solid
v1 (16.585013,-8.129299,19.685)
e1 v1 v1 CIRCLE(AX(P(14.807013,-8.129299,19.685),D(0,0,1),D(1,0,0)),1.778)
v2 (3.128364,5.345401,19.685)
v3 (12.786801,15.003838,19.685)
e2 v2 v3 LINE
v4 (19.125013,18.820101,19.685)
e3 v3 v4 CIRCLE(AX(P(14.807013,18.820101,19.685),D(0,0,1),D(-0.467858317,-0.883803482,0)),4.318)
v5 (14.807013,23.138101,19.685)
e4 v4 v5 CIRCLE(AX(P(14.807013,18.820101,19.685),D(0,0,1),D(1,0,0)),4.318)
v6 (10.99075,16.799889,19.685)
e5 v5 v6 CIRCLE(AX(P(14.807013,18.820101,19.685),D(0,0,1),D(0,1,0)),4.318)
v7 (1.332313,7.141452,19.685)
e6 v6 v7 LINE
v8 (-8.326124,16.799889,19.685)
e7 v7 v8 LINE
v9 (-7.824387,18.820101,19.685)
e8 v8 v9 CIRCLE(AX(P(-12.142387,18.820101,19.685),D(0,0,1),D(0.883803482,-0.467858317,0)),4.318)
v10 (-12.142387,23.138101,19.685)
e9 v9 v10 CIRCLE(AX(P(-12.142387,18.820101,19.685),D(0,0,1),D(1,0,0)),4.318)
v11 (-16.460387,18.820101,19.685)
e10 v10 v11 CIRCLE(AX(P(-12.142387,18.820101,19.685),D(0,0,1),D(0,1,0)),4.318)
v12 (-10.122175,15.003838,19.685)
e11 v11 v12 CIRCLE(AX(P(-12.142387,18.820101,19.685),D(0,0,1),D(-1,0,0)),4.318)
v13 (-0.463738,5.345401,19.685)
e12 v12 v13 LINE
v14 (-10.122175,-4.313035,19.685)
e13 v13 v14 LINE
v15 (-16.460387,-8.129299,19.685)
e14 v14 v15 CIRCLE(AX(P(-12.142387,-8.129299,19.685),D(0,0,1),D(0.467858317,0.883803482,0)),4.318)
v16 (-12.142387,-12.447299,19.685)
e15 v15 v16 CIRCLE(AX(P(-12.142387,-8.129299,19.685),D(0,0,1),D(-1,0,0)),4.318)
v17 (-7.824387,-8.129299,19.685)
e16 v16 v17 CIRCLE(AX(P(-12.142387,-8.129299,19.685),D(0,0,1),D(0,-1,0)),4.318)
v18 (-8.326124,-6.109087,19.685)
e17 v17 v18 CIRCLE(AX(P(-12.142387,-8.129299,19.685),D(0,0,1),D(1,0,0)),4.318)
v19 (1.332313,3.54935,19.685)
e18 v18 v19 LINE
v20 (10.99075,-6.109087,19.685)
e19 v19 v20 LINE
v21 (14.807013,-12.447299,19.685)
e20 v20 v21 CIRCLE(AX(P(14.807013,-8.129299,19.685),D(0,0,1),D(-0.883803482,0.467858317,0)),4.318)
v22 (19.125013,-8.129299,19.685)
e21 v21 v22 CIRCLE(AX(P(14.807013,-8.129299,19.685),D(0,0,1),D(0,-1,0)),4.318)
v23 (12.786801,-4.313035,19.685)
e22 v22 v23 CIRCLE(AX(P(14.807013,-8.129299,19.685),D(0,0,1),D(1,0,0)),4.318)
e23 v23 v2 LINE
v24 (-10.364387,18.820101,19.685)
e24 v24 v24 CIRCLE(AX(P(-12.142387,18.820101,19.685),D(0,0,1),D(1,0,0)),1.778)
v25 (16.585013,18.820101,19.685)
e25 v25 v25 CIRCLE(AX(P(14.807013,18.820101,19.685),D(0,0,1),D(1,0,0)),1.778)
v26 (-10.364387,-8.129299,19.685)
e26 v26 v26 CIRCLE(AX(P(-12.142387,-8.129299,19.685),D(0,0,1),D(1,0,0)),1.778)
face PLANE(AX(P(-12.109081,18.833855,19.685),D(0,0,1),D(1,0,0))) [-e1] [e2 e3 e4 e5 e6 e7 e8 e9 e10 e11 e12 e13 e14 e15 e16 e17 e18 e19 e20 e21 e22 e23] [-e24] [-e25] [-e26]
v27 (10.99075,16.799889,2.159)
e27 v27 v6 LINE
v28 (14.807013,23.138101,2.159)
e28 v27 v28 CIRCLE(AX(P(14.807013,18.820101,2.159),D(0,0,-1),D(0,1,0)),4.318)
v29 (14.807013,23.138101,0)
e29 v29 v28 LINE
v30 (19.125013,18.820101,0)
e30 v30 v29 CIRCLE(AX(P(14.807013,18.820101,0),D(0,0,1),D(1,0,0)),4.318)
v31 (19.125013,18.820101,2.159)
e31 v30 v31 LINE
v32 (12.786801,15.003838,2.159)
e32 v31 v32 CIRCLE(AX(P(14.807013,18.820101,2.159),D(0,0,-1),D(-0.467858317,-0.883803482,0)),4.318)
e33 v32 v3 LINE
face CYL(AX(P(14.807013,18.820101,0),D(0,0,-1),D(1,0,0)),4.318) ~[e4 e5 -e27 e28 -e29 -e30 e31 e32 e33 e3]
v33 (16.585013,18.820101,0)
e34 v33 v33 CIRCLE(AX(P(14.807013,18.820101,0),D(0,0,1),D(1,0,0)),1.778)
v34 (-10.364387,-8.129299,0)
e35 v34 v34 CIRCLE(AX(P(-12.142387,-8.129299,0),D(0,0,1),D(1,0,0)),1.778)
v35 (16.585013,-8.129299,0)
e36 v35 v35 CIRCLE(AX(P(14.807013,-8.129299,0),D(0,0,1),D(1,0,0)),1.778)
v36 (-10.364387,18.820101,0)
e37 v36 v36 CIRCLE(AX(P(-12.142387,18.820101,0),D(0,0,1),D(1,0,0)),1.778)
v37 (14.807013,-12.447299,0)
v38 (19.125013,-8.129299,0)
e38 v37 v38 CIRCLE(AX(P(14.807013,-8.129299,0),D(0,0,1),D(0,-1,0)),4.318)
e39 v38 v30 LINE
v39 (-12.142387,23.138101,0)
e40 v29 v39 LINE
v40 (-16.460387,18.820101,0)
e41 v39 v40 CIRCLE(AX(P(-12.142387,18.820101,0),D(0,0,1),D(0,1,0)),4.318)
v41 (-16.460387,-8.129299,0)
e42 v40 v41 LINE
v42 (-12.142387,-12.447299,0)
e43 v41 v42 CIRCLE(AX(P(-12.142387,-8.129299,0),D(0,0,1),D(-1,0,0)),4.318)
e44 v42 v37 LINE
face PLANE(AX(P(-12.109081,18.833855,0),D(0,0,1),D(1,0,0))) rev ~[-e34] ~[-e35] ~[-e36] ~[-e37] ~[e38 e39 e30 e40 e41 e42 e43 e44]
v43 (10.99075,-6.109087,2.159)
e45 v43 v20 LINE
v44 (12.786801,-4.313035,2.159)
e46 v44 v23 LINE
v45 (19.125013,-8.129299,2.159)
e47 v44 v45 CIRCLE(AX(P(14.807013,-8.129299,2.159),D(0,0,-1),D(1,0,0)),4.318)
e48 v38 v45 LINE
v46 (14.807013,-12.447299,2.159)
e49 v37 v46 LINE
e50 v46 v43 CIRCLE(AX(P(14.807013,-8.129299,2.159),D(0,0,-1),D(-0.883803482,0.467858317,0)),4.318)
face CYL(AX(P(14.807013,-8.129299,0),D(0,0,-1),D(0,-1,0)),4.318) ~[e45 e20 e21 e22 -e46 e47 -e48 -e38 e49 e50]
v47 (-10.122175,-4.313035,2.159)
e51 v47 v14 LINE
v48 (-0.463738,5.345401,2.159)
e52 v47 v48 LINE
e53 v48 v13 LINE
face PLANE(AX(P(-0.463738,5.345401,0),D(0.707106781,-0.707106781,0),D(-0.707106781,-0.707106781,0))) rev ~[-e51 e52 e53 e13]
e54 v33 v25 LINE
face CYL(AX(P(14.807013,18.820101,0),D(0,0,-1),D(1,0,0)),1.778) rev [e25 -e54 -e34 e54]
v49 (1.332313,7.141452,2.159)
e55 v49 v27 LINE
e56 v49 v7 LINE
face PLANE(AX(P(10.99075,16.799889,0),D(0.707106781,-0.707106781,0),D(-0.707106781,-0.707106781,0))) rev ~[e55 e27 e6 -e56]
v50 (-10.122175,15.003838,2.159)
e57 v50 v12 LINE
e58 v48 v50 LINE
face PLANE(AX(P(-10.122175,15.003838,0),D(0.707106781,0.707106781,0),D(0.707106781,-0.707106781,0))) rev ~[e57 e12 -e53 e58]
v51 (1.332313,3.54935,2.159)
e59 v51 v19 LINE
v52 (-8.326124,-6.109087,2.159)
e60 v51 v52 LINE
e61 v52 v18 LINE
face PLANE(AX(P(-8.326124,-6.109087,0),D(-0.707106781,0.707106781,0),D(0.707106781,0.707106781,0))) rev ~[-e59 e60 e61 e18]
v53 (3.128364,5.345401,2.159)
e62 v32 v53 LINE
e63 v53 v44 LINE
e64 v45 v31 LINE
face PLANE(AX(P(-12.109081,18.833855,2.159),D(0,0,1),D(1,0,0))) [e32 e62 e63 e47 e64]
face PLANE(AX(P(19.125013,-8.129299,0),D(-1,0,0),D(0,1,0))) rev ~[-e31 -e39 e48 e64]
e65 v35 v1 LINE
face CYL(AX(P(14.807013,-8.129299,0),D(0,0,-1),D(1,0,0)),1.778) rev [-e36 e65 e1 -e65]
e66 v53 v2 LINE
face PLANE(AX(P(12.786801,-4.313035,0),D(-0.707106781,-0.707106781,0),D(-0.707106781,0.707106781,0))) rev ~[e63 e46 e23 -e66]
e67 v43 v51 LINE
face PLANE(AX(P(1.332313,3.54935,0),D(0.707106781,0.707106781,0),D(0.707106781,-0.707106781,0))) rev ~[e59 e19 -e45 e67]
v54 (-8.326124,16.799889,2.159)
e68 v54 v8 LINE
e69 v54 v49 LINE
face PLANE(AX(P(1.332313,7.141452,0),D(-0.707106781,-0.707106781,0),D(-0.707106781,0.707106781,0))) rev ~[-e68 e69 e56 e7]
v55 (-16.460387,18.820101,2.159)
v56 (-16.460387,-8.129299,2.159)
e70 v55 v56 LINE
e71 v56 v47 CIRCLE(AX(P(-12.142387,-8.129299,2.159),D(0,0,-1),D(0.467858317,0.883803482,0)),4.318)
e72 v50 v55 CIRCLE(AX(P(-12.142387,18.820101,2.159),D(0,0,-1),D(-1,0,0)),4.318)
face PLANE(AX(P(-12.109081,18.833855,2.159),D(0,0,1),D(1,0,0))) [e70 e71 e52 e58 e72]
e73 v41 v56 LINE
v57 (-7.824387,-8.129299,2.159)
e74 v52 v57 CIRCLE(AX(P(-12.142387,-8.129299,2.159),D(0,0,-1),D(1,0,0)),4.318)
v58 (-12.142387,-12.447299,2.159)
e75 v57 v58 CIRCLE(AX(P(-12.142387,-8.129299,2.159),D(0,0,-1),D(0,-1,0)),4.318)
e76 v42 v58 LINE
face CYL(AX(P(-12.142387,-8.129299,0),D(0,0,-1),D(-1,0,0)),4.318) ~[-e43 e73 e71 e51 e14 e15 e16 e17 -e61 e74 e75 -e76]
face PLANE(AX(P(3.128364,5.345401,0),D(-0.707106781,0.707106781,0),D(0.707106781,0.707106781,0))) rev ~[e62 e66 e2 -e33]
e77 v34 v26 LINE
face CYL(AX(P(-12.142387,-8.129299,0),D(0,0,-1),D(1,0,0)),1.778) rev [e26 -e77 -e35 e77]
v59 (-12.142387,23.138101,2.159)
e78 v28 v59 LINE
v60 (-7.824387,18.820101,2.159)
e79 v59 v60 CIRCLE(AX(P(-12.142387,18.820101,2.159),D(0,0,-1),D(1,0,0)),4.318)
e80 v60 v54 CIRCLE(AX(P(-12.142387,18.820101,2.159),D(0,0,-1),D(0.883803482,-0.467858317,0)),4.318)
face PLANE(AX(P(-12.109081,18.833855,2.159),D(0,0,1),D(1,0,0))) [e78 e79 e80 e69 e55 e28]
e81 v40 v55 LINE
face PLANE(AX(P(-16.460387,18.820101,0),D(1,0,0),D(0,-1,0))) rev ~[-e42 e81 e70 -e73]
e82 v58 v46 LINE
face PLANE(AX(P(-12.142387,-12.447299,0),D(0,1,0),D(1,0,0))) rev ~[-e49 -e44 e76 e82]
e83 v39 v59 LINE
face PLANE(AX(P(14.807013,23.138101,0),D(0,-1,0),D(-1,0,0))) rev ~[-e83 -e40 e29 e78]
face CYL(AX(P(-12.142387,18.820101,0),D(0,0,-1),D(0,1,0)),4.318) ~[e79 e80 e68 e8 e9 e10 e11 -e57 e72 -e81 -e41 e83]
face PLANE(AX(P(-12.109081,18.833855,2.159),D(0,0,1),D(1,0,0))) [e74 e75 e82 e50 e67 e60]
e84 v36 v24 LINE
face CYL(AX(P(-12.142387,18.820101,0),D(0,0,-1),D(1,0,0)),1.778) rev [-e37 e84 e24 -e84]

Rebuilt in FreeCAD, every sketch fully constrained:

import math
import FreeCAD as App
import Part
import Sketcher
from FreeCAD import Vector
Q = App.Units.Quantity

doc = App.newDocument("Part")
params = doc.addObject("Spreadsheet::Sheet", "Params")
for row, (alias, value) in enumerate([
    ("sketch1_diameter", "0.14 in"),
    ("sketch1_radius", "0.17 in"),
    ("sketch1_width", "1.061 in"),
    ("pad1_length", "0.085 in"),
    ("sketch2_diameter", "0.14 in"),
    ("sketch2_radius", "0.17 in"),
    ("pad2_length", "0.775 in"),
], start=1):
    params.set(f"A{row}", alias)
    params.set(f"B{row}", "=" + value)
    params.setAlias(f"B{row}", alias)

body = doc.addObject("PartDesign::Body", "Body")

# Sketch on XY plane
sketch1 = doc.addObject("Sketcher::SketchObject", "Sketch")
body.addObject(sketch1)
sketch1.AttachmentSupport = (doc.XY_Plane, [""])
sketch1.MapMode = "FlatFace"
sketch1.addGeometry(Part.ArcOfCircle(Part.Circle(Vector(-12.1, 18.8, 0), Vector(0, 0, 1), 4.3), math.radians(90), math.radians(180)), False)
sketch1.addGeometry(Part.LineSegment(Vector(-16.5, 18.8, 0), Vector(-16.5, -8.1, 0)), False)
sketch1.addGeometry(Part.ArcOfCircle(Part.Circle(Vector(-12.1, -8.1, 0), Vector(0, 0, 1), 4.3), math.radians(180), math.radians(270)), False)
sketch1.addGeometry(Part.LineSegment(Vector(-12.1, -12.4, 0), Vector(14.8, -12.4, 0)), False)
sketch1.addGeometry(Part.ArcOfCircle(Part.Circle(Vector(14.8, -8.1, 0), Vector(0, 0, 1), 4.3), math.radians(-90), math.radians(0)), False)
sketch1.addGeometry(Part.LineSegment(Vector(19.1, -8.1, 0), Vector(19.1, 18.8, 0)), False)
sketch1.addGeometry(Part.ArcOfCircle(Part.Circle(Vector(14.8, 18.8, 0), Vector(0, 0, 1), 4.3), math.radians(0), math.radians(90)), False)
sketch1.addGeometry(Part.LineSegment(Vector(14.8, 23.1, 0), Vector(-12.1, 23.1, 0)), False)
sketch1.addGeometry(Part.Circle(Vector(-12.1, 18.8, 0), Vector(0, 0, 1), 1.8), False)
sketch1.addGeometry(Part.Circle(Vector(14.8, 18.8, 0), Vector(0, 0, 1), 1.8), False)
sketch1.addGeometry(Part.Circle(Vector(-12.1, -8.1, 0), Vector(0, 0, 1), 1.8), False)
sketch1.addGeometry(Part.Circle(Vector(14.8, -8.1, 0), Vector(0, 0, 1), 1.8), False)
sketch1.addConstraint(Sketcher.Constraint("Tangent", 0, 2, 1, 1))
sketch1.addConstraint(Sketcher.Constraint("Tangent", 1, 2, 2, 1))
sketch1.addConstraint(Sketcher.Constraint("Tangent", 2, 2, 3, 1))
sketch1.addConstraint(Sketcher.Constraint("Tangent", 3, 2, 4, 1))
sketch1.addConstraint(Sketcher.Constraint("Tangent", 4, 2, 5, 1))
sketch1.addConstraint(Sketcher.Constraint("Tangent", 5, 2, 6, 1))
sketch1.addConstraint(Sketcher.Constraint("Tangent", 6, 2, 7, 1))
sketch1.addConstraint(Sketcher.Constraint("Tangent", 7, 2, 0, 1))
sketch1.addConstraint(Sketcher.Constraint("Vertical", 1))
sketch1.addConstraint(Sketcher.Constraint("Horizontal", 3))
sketch1.addConstraint(Sketcher.Constraint("Vertical", 5))
sketch1.addConstraint(Sketcher.Constraint("Horizontal", 7))
sketch1.addConstraint(Sketcher.Constraint("Coincident", 8, 3, 0, 3))
sketch1.addConstraint(Sketcher.Constraint("Coincident", 9, 3, 6, 3))
sketch1.addConstraint(Sketcher.Constraint("Coincident", 10, 3, 2, 3))
sketch1.addConstraint(Sketcher.Constraint("Coincident", 11, 3, 4, 3))
sketch1.addConstraint(Sketcher.Constraint("Equal", 0, 2))
sketch1.addConstraint(Sketcher.Constraint("Equal", 2, 4))
sketch1.addConstraint(Sketcher.Constraint("Equal", 4, 6))
sketch1.addConstraint(Sketcher.Constraint("Equal", 8, 9))
sketch1.addConstraint(Sketcher.Constraint("Equal", 9, 10))
sketch1.addConstraint(Sketcher.Constraint("Equal", 10, 11))
sketch1.addConstraint(Sketcher.Constraint("Equal", 7, 1))
sketch1.addConstraint(Sketcher.Constraint("Diameter", 8, Q("0.14 in")))
sketch1.addConstraint(Sketcher.Constraint("Radius", 0, Q("0.17 in")))
sketch1.addConstraint(Sketcher.Constraint("DistanceX", 3, 1, 3, 2, Q("1.061 in")))
sketch1.addConstraint(Sketcher.Constraint("DistanceY", -1, 1, 0, 3, 18.820101))
sketch1.addConstraint(Sketcher.Constraint("DistanceX", 0, 3, -1, 1, 12.142387))
sketch1.setExpression("Constraints[23]", "Params.sketch1_diameter")
sketch1.setExpression("Constraints[24]", "Params.sketch1_radius")
sketch1.setExpression("Constraints[25]", "Params.sketch1_width")
pad1 = doc.addObject("PartDesign::Pad", "Pad")
body.addObject(pad1)
pad1.Profile = sketch1
pad1.setExpression("Length", "Params.pad1_length")

# Sketch on XY plane
sketch2 = doc.addObject("Sketcher::SketchObject", "Sketch001")
body.addObject(sketch2)
sketch2.AttachmentSupport = (doc.XY_Plane, [""])
sketch2.MapMode = "FlatFace"
sketch2.addGeometry(Part.ArcOfCircle(Part.Circle(Vector(-12.1, 18.8, 0), Vector(0, 0, 1), 4.3), math.radians(0), math.radians(90)), False)
sketch2.addGeometry(Part.ArcOfCircle(Part.Circle(Vector(-12.1, 18.8, 0), Vector(0, 0, 1), 4.3), math.radians(90), math.radians(180)), False)
sketch2.addGeometry(Part.ArcOfCircle(Part.Circle(Vector(-12.1, 18.8, 0), Vector(0, 0, 1), 4.3), math.radians(180), math.radians(298)), False)
sketch2.addGeometry(Part.LineSegment(Vector(-10.1, 15, 0), Vector(-0.5, 5.3, 0)), False)
sketch2.addGeometry(Part.LineSegment(Vector(-0.5, 5.3, 0), Vector(-10.1, -4.3, 0)), False)
sketch2.addGeometry(Part.ArcOfCircle(Part.Circle(Vector(-12.1, -8.1, 0), Vector(0, 0, 1), 4.3), math.radians(62), math.radians(180)), False)
sketch2.addGeometry(Part.ArcOfCircle(Part.Circle(Vector(-12.1, -8.1, 0), Vector(0, 0, 1), 4.3), math.radians(180), math.radians(270)), False)
sketch2.addGeometry(Part.ArcOfCircle(Part.Circle(Vector(-12.1, -8.1, 0), Vector(0, 0, 1), 4.3), math.radians(-90), math.radians(0)), False)
sketch2.addGeometry(Part.ArcOfCircle(Part.Circle(Vector(-12.1, -8.1, 0), Vector(0, 0, 1), 4.3), math.radians(0), math.radians(28)), False)
sketch2.addGeometry(Part.LineSegment(Vector(-8.3, -6.1, 0), Vector(1.3, 3.5, 0)), False)
sketch2.addGeometry(Part.LineSegment(Vector(1.3, 3.5, 0), Vector(11, -6.1, 0)), False)
sketch2.addGeometry(Part.ArcOfCircle(Part.Circle(Vector(14.8, -8.1, 0), Vector(0, 0, 1), 4.3), math.radians(152), math.radians(270)), False)
sketch2.addGeometry(Part.ArcOfCircle(Part.Circle(Vector(14.8, -8.1, 0), Vector(0, 0, 1), 4.3), math.radians(-90), math.radians(0)), False)
sketch2.addGeometry(Part.ArcOfCircle(Part.Circle(Vector(14.8, -8.1, 0), Vector(0, 0, 1), 4.3), math.radians(0), math.radians(118)), False)
sketch2.addGeometry(Part.LineSegment(Vector(12.8, -4.3, 0), Vector(3.1, 5.3, 0)), False)
sketch2.addGeometry(Part.LineSegment(Vector(3.1, 5.3, 0), Vector(12.8, 15, 0)), False)
sketch2.addGeometry(Part.ArcOfCircle(Part.Circle(Vector(14.8, 18.8, 0), Vector(0, 0, 1), 4.3), math.radians(-118), math.radians(0)), False)
sketch2.addGeometry(Part.ArcOfCircle(Part.Circle(Vector(14.8, 18.8, 0), Vector(0, 0, 1), 4.3), math.radians(0), math.radians(90)), False)
sketch2.addGeometry(Part.ArcOfCircle(Part.Circle(Vector(14.8, 18.8, 0), Vector(0, 0, 1), 4.3), math.radians(90), math.radians(208)), False)
sketch2.addGeometry(Part.LineSegment(Vector(11, 16.8, 0), Vector(1.3, 7.1, 0)), False)
sketch2.addGeometry(Part.LineSegment(Vector(1.3, 7.1, 0), Vector(-8.3, 16.8, 0)), False)
sketch2.addGeometry(Part.ArcOfCircle(Part.Circle(Vector(-12.1, 18.8, 0), Vector(0, 0, 1), 4.3), math.radians(-28), math.radians(0)), False)
sketch2.addGeometry(Part.Circle(Vector(-12.1, 18.8, 0), Vector(0, 0, 1), 1.8), False)
sketch2.addGeometry(Part.Circle(Vector(-12.1, -8.1, 0), Vector(0, 0, 1), 1.8), False)
sketch2.addGeometry(Part.Circle(Vector(14.8, -8.1, 0), Vector(0, 0, 1), 1.8), False)
sketch2.addGeometry(Part.Circle(Vector(14.8, 18.8, 0), Vector(0, 0, 1), 1.8), False)
sketch2.addConstraint(Sketcher.Constraint("Tangent", 0, 2, 1, 1))
sketch2.addConstraint(Sketcher.Constraint("Tangent", 1, 2, 2, 1))
sketch2.addConstraint(Sketcher.Constraint("Coincident", 2, 2, 3, 1))
sketch2.addConstraint(Sketcher.Constraint("Coincident", 3, 2, 4, 1))
sketch2.addConstraint(Sketcher.Constraint("Coincident", 4, 2, 5, 1))
sketch2.addConstraint(Sketcher.Constraint("Tangent", 5, 2, 6, 1))
sketch2.addConstraint(Sketcher.Constraint("Tangent", 6, 2, 7, 1))
sketch2.addConstraint(Sketcher.Constraint("Tangent", 7, 2, 8, 1))
sketch2.addConstraint(Sketcher.Constraint("Coincident", 8, 2, 9, 1))
sketch2.addConstraint(Sketcher.Constraint("Coincident", 9, 2, 10, 1))
sketch2.addConstraint(Sketcher.Constraint("Coincident", 10, 2, 11, 1))
sketch2.addConstraint(Sketcher.Constraint("Tangent", 11, 2, 12, 1))
sketch2.addConstraint(Sketcher.Constraint("Tangent", 12, 2, 13, 1))
sketch2.addConstraint(Sketcher.Constraint("Coincident", 13, 2, 14, 1))
sketch2.addConstraint(Sketcher.Constraint("Coincident", 14, 2, 15, 1))
sketch2.addConstraint(Sketcher.Constraint("Coincident", 15, 2, 16, 1))
sketch2.addConstraint(Sketcher.Constraint("Tangent", 16, 2, 17, 1))
sketch2.addConstraint(Sketcher.Constraint("Tangent", 17, 2, 18, 1))
sketch2.addConstraint(Sketcher.Constraint("Coincident", 18, 2, 19, 1))
sketch2.addConstraint(Sketcher.Constraint("Coincident", 19, 2, 20, 1))
sketch2.addConstraint(Sketcher.Constraint("Coincident", 20, 2, 21, 1))
sketch2.addConstraint(Sketcher.Constraint("Tangent", 21, 2, 0, 1))
sketch2.addConstraint(Sketcher.Constraint("Coincident", 2, 3, 0, 3))
sketch2.addConstraint(Sketcher.Constraint("Coincident", 7, 3, 5, 3))
sketch2.addConstraint(Sketcher.Constraint("Coincident", 13, 3, 11, 3))
sketch2.addConstraint(Sketcher.Constraint("Coincident", 18, 3, 16, 3))
sketch2.addConstraint(Sketcher.Constraint("Coincident", 22, 3, 0, 3))
sketch2.addConstraint(Sketcher.Constraint("Coincident", 23, 3, 5, 3))
sketch2.addConstraint(Sketcher.Constraint("Coincident", 24, 3, 11, 3))
sketch2.addConstraint(Sketcher.Constraint("Coincident", 25, 3, 16, 3))
sketch2.addConstraint(Sketcher.Constraint("Equal", 2, 5))
sketch2.addConstraint(Sketcher.Constraint("Equal", 7, 8))
sketch2.addConstraint(Sketcher.Constraint("Equal", 8, 11))
sketch2.addConstraint(Sketcher.Constraint("Equal", 13, 16))
sketch2.addConstraint(Sketcher.Constraint("Equal", 18, 21))
sketch2.addConstraint(Sketcher.Constraint("Equal", 22, 23))
sketch2.addConstraint(Sketcher.Constraint("Equal", 23, 24))
sketch2.addConstraint(Sketcher.Constraint("Equal", 24, 25))
sketch2.addConstraint(Sketcher.Constraint("Perpendicular", 3, 4))
sketch2.addConstraint(Sketcher.Constraint("Parallel", 4, 9))
sketch2.addConstraint(Sketcher.Constraint("Perpendicular", 9, 10))
sketch2.addConstraint(Sketcher.Constraint("Parallel", 10, 14))
sketch2.addConstraint(Sketcher.Constraint("Perpendicular", 14, 15))
sketch2.addConstraint(Sketcher.Constraint("Parallel", 15, 19))
sketch2.addConstraint(Sketcher.Constraint("Perpendicular", 19, 20))
sketch2.addConstraint(Sketcher.Constraint("Horizontal", 8, 3, 11, 3))
sketch2.addConstraint(Sketcher.Constraint("Horizontal", 2, 3, 16, 3))
sketch2.addConstraint(Sketcher.Constraint("Horizontal", 25, 3, 1, 2))
sketch2.addConstraint(Sketcher.Constraint("Horizontal", 24, 3, 5, 2))
sketch2.addConstraint(Sketcher.Constraint("Horizontal", 5, 2, 7, 2))
sketch2.addConstraint(Sketcher.Constraint("Horizontal", 8, 2, 10, 2))
sketch2.addConstraint(Sketcher.Constraint("Horizontal", 7, 2, 12, 2))
sketch2.addConstraint(Sketcher.Constraint("Horizontal", 4, 2, 13, 2))
sketch2.addConstraint(Sketcher.Constraint("Horizontal", 3, 2, 14, 2))
sketch2.addConstraint(Sketcher.Constraint("Horizontal", 2, 2, 15, 2))
sketch2.addConstraint(Sketcher.Constraint("Horizontal", 1, 2, 16, 2))
sketch2.addConstraint(Sketcher.Constraint("Horizontal", 18, 2, 20, 2))
sketch2.addConstraint(Sketcher.Constraint("Horizontal", 16, 2, 21, 2))
sketch2.addConstraint(Sketcher.Constraint("Vertical", 2, 3, 5, 3))
sketch2.addConstraint(Sketcher.Constraint("Vertical", 13, 3, 16, 3))
sketch2.addConstraint(Sketcher.Constraint("Vertical", 23, 3, 0, 2))
sketch2.addConstraint(Sketcher.Constraint("Vertical", 2, 2, 4, 2))
sketch2.addConstraint(Sketcher.Constraint("Vertical", 0, 2, 6, 2))
sketch2.addConstraint(Sketcher.Constraint("Vertical", 25, 3, 11, 2))
sketch2.addConstraint(Sketcher.Constraint("Vertical", 11, 2, 17, 2))
sketch2.addConstraint(Sketcher.Constraint("Vertical", 10, 2, 18, 2))
sketch2.addConstraint(Sketcher.Constraint("Equal", 4, 9))
sketch2.addConstraint(Sketcher.Constraint("Diameter", 22, Q("0.14 in")))
sketch2.addConstraint(Sketcher.Constraint("Radius", 0, Q("0.17 in")))
sketch2.addConstraint(Sketcher.Constraint("DistanceY", 5, 3, 0, 3, Q("1.061 in")))
sketch2.addConstraint(Sketcher.Constraint("DistanceX", 8, 3, 11, 3, Q("1.061 in")))
sketch2.addConstraint(Sketcher.Constraint("DistanceX", 8, 2, -1, 1, Q("0.3278001 in")))
sketch2.addConstraint(Sketcher.Constraint("DistanceY", -1, 1, 0, 3, 18.820101))
sketch2.addConstraint(Sketcher.Constraint("DistanceX", -1, 1, 13, 2, 12.786801))
sketch2.setExpression("Constraints[67]", "Params.sketch2_diameter")
sketch2.setExpression("Constraints[68]", "Params.sketch2_radius")
pad2 = doc.addObject("PartDesign::Pad", "Pad001")
body.addObject(pad2)
pad2.Profile = sketch2
pad2.setExpression("Length", "Params.pad2_length")

doc.recompute()
